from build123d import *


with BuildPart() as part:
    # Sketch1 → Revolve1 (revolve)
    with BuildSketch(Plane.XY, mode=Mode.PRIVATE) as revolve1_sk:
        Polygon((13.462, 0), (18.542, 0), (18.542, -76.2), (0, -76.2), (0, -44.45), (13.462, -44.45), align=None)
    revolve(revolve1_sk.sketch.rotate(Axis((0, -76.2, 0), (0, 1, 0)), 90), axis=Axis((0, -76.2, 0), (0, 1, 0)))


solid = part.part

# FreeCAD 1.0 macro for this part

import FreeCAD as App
import Part
import Sketcher

V = App.Vector
Q = App.Units.Quantity

doc = App.newDocument("Part")
body = doc.addObject("PartDesign::Body", "Body")

sketch1 = body.newObject("Sketcher::SketchObject", "Sketch")
sketch1.AttachmentSupport = (doc.getObject("XY_Plane"), [""])
sketch1.MapMode = "FlatFace"
sketch1.addGeometry([
    Part.LineSegment(V(18.542, 0, 0), V(13.462, 0, 0)),
    Part.LineSegment(V(13.462, 0, 0), V(13.462, -44.45, 0)),
    Part.LineSegment(V(13.462, -44.45, 0), V(0, -44.45, 0)),
    Part.LineSegment(V(0, -44.45, 0), V(0, -76.2, 0)),
    Part.LineSegment(V(0, -76.2, 0), V(18.542, -76.2, 0)),
    Part.LineSegment(V(18.542, -76.2, 0), V(18.542, 0, 0)),
], False)
sketch1.addConstraint([
    Sketcher.Constraint("Coincident", 0, 2, 1, 1),
    Sketcher.Constraint("Coincident", 1, 2, 2, 1),
    Sketcher.Constraint("Coincident", 2, 2, 3, 1),
    Sketcher.Constraint("Coincident", 3, 2, 4, 1),
    Sketcher.Constraint("Coincident", 4, 2, 5, 1),
    Sketcher.Constraint("Coincident", 5, 2, 0, 1),
    Sketcher.Constraint("Horizontal", 0),
    Sketcher.Constraint("Vertical", 1),
    Sketcher.Constraint("Horizontal", 2),
    Sketcher.Constraint("Vertical", 3),
    Sketcher.Constraint("Horizontal", 4),
    Sketcher.Constraint("Vertical", 5),
    Sketcher.Constraint("PointOnObject", 0, 2, -1),
    Sketcher.Constraint("PointOnObject", 2, 2, -2),
    Sketcher.Constraint("DistanceY", 5, 1, 5, 2, Q("3 in")),
    Sketcher.Constraint("DistanceX", 0, 2, 0, 1, Q("0.2 in")),
    Sketcher.Constraint("DistanceX", 2, 2, 2, 1, Q("0.53 in")),
    Sketcher.Constraint("DistanceY", 1, 2, 1, 1, Q("1.75 in")),
])
revolution = body.newObject("PartDesign::Revolution", "Revolution")
revolution.Profile = sketch1
revolution.ReferenceAxis = (sketch1, ["V_Axis"])
revolution.Angle = 360

doc.recompute()
